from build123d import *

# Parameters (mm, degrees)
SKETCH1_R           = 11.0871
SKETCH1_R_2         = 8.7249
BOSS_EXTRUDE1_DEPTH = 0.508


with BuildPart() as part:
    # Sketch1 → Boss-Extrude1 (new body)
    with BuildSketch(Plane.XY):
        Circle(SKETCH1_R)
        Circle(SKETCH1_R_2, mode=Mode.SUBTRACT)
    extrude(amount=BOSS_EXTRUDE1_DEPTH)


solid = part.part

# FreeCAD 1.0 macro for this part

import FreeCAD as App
import Part
import Sketcher

V = App.Vector
Q = App.Units.Quantity

doc = App.newDocument("Part")
body = doc.addObject("PartDesign::Body", "Body")

sketch1 = body.newObject("Sketcher::SketchObject", "Sketch")
sketch1.AttachmentSupport = (doc.getObject("XY_Plane"), [""])
sketch1.MapMode = "FlatFace"
sketch1.addGeometry(Part.Circle(V(0, 0, 0), V(0, 0, 1), 11.0871), False)
sketch1.addGeometry(Part.Circle(V(0, 0, 0), V(0, 0, 1), 8.7249), False)
sketch1.addConstraint(Sketcher.Constraint("Coincident", 0, 3, -1, 1))
sketch1.addConstraint(Sketcher.Constraint("Coincident", 1, 3, -1, 1))
sketch1.addConstraint(Sketcher.Constraint("Diameter", 0, Q("0.873 in")))
sketch1.addConstraint(Sketcher.Constraint("Diameter", 1, Q("0.687 in")))
pad1 = body.newObject("PartDesign::Pad", "Pad")
pad1.Profile = sketch1
pad1.Length = Q("0.02 in")

doc.recompute()
